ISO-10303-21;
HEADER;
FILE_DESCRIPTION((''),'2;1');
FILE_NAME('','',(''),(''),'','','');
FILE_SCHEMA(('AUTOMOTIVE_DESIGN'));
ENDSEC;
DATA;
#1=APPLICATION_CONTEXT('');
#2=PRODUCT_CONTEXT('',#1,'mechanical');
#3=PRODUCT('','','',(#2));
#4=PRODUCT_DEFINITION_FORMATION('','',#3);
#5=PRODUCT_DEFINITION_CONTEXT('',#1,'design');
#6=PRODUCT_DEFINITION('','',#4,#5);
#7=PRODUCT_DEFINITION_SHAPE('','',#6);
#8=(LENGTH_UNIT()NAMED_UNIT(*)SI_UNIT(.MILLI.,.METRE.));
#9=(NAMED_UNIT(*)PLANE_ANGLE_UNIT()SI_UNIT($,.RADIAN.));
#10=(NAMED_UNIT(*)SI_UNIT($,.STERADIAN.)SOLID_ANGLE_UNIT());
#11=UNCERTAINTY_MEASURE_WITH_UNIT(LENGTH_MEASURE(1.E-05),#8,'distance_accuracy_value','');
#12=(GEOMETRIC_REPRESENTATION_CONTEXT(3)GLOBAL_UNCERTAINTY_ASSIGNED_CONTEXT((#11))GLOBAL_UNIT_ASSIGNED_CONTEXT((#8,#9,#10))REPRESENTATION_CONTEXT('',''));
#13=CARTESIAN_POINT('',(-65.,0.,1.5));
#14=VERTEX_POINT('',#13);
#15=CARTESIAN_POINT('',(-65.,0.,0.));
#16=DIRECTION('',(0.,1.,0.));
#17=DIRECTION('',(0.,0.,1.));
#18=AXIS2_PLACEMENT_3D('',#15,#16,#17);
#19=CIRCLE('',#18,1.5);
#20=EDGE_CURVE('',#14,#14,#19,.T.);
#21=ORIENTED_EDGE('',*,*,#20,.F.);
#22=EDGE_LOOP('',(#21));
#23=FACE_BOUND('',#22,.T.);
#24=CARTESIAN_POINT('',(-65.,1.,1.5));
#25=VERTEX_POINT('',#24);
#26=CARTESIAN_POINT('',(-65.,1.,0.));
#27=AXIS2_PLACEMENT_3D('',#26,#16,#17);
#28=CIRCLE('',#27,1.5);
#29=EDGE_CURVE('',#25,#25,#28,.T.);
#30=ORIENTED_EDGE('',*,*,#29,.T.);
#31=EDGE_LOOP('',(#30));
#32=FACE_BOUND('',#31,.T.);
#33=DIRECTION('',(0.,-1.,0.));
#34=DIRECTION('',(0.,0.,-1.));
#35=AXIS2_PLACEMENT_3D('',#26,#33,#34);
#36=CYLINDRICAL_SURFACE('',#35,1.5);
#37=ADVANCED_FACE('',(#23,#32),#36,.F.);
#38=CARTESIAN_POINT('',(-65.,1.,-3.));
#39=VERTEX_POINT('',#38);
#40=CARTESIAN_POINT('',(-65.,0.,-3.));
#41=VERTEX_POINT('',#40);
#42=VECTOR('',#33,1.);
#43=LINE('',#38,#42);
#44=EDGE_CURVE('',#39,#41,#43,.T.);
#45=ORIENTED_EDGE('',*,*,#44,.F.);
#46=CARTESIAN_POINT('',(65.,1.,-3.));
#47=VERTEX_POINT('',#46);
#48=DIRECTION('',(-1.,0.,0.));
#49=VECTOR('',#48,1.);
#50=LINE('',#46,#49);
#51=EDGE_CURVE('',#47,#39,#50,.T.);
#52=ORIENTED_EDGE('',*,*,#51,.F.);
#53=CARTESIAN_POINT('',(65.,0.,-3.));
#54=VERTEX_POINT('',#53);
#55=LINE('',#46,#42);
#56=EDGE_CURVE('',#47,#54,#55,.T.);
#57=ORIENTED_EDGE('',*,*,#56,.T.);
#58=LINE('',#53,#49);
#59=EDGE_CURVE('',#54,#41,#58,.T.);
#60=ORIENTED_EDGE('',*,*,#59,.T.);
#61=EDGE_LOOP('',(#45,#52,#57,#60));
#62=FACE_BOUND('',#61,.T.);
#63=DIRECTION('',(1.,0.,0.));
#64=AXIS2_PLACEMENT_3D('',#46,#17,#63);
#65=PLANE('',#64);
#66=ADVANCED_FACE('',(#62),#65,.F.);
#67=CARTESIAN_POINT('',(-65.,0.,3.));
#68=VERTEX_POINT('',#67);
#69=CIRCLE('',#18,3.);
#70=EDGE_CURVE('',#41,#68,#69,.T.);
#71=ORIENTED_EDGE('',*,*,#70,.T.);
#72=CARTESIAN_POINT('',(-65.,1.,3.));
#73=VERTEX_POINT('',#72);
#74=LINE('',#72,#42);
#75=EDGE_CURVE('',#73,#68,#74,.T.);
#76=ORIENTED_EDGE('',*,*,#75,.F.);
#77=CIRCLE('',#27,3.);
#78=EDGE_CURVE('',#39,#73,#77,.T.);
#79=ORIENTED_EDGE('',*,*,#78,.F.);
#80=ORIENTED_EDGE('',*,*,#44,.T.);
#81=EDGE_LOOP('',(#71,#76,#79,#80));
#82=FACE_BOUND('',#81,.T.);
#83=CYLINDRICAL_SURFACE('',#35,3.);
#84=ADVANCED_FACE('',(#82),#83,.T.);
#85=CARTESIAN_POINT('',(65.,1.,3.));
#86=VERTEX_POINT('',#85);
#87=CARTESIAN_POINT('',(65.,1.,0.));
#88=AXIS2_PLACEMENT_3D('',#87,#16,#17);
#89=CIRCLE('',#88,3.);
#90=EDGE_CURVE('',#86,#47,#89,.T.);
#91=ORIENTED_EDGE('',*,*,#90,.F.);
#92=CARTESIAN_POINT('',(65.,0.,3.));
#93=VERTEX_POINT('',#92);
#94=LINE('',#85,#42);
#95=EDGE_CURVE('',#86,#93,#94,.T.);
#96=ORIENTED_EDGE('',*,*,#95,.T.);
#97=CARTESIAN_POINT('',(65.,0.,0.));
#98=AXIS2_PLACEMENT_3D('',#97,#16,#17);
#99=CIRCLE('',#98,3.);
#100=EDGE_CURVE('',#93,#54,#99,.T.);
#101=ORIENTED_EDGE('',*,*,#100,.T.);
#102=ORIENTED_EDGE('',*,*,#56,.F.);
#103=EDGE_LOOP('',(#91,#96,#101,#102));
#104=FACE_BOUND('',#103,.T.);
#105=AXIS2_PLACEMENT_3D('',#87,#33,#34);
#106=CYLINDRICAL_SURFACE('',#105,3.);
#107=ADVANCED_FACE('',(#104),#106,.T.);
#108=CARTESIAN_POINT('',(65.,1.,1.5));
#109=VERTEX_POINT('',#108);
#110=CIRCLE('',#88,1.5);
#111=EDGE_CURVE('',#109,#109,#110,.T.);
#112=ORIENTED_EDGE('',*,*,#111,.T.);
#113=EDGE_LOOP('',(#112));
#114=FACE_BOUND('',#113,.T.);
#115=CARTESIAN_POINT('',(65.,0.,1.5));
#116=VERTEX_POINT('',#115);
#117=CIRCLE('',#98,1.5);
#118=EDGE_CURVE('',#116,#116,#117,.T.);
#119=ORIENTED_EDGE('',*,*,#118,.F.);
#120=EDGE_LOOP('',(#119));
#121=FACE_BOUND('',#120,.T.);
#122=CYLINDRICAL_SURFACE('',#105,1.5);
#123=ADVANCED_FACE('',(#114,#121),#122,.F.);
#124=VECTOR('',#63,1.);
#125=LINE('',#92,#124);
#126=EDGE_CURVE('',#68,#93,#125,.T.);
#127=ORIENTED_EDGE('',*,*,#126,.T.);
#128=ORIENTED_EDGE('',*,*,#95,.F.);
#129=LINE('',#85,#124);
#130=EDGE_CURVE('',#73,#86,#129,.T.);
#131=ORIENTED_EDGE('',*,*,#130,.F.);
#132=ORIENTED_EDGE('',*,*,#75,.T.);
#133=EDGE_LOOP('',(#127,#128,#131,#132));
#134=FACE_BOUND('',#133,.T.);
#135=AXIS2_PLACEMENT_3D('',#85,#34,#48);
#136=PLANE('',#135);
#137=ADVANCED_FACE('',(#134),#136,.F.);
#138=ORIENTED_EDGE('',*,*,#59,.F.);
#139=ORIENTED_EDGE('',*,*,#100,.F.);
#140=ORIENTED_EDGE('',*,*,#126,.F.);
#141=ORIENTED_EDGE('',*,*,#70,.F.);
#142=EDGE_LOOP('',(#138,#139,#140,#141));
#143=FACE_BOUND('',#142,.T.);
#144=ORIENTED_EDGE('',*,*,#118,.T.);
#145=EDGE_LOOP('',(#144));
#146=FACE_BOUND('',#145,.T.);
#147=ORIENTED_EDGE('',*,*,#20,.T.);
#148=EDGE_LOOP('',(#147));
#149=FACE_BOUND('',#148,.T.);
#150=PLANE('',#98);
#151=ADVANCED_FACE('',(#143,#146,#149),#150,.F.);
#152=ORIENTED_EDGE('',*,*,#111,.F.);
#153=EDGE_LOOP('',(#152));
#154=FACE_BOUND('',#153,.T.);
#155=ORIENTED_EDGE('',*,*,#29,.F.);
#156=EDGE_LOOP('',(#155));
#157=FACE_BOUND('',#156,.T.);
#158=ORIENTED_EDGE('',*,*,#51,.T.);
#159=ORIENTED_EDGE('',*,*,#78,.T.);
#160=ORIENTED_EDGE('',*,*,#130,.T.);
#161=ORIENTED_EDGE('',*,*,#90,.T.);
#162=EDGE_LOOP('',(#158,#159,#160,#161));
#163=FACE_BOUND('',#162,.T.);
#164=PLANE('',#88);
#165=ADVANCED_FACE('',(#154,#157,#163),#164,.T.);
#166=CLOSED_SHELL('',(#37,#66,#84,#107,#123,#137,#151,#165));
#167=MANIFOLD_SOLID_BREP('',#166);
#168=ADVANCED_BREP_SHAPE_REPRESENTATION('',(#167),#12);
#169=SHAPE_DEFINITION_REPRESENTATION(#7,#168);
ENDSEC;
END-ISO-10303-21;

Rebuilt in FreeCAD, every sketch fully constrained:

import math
import FreeCAD as App
import Part
import Sketcher

V = App.Vector
Q = App.Units.Quantity

doc = App.newDocument("Part")
body = doc.addObject("PartDesign::Body", "Body")

sketch1 = body.newObject("Sketcher::SketchObject", "Sketch")
sketch1.AttachmentSupport = (doc.getObject("XZ_Plane"), [""])
sketch1.MapMode = "FlatFace"
sketch1.addGeometry(Part.LineSegment(V(-65, 3, 0), V(65, 3, 0)), False)
sketch1.addGeometry(Part.ArcOfCircle(Part.Circle(V(65, 0, 0), V(0, 0, 1), 3), math.radians(-90), math.radians(90)), False)
sketch1.addGeometry(Part.LineSegment(V(65, -3, 0), V(-65, -3, 0)), False)
sketch1.addGeometry(Part.ArcOfCircle(Part.Circle(V(-65, 0, 0), V(0, 0, 1), 3), math.radians(90), math.radians(270)), False)
sketch1.addGeometry(Part.Circle(V(65, 0, 0), V(0, 0, 1), 1.5), False)
sketch1.addGeometry(Part.Circle(V(-65, 0, 0), V(0, 0, 1), 1.5), False)
sketch1.addConstraint(Sketcher.Constraint("Tangent", 0, 2, 1, 2))
sketch1.addConstraint(Sketcher.Constraint("Tangent", 1, 1, 2, 1))
sketch1.addConstraint(Sketcher.Constraint("Tangent", 2, 2, 3, 2))
sketch1.addConstraint(Sketcher.Constraint("Tangent", 3, 1, 0, 1))
sketch1.addConstraint(Sketcher.Constraint("Horizontal", 0))
sketch1.addConstraint(Sketcher.Constraint("Horizontal", 2))
sketch1.addConstraint(Sketcher.Constraint("Coincident", 4, 3, 1, 3))
sketch1.addConstraint(Sketcher.Constraint("Coincident", 5, 3, 3, 3))
sketch1.addConstraint(Sketcher.Constraint("Equal", 4, 5))
sketch1.addConstraint(Sketcher.Constraint("Symmetric", 1, 3, 3, 3, -1, 1))
sketch1.addConstraint(Sketcher.Constraint("Diameter", 4, Q("3 mm")))
sketch1.addConstraint(Sketcher.Constraint("Radius", 1, Q("3 mm")))
sketch1.addConstraint(Sketcher.Constraint("DistanceX", 0, 1, 0, 2, Q("130 mm")))
pad1 = body.newObject("PartDesign::Pad", "Pad")
pad1.Profile = sketch1
pad1.Length = 1
pad1.Reversed = True

doc.recompute()
